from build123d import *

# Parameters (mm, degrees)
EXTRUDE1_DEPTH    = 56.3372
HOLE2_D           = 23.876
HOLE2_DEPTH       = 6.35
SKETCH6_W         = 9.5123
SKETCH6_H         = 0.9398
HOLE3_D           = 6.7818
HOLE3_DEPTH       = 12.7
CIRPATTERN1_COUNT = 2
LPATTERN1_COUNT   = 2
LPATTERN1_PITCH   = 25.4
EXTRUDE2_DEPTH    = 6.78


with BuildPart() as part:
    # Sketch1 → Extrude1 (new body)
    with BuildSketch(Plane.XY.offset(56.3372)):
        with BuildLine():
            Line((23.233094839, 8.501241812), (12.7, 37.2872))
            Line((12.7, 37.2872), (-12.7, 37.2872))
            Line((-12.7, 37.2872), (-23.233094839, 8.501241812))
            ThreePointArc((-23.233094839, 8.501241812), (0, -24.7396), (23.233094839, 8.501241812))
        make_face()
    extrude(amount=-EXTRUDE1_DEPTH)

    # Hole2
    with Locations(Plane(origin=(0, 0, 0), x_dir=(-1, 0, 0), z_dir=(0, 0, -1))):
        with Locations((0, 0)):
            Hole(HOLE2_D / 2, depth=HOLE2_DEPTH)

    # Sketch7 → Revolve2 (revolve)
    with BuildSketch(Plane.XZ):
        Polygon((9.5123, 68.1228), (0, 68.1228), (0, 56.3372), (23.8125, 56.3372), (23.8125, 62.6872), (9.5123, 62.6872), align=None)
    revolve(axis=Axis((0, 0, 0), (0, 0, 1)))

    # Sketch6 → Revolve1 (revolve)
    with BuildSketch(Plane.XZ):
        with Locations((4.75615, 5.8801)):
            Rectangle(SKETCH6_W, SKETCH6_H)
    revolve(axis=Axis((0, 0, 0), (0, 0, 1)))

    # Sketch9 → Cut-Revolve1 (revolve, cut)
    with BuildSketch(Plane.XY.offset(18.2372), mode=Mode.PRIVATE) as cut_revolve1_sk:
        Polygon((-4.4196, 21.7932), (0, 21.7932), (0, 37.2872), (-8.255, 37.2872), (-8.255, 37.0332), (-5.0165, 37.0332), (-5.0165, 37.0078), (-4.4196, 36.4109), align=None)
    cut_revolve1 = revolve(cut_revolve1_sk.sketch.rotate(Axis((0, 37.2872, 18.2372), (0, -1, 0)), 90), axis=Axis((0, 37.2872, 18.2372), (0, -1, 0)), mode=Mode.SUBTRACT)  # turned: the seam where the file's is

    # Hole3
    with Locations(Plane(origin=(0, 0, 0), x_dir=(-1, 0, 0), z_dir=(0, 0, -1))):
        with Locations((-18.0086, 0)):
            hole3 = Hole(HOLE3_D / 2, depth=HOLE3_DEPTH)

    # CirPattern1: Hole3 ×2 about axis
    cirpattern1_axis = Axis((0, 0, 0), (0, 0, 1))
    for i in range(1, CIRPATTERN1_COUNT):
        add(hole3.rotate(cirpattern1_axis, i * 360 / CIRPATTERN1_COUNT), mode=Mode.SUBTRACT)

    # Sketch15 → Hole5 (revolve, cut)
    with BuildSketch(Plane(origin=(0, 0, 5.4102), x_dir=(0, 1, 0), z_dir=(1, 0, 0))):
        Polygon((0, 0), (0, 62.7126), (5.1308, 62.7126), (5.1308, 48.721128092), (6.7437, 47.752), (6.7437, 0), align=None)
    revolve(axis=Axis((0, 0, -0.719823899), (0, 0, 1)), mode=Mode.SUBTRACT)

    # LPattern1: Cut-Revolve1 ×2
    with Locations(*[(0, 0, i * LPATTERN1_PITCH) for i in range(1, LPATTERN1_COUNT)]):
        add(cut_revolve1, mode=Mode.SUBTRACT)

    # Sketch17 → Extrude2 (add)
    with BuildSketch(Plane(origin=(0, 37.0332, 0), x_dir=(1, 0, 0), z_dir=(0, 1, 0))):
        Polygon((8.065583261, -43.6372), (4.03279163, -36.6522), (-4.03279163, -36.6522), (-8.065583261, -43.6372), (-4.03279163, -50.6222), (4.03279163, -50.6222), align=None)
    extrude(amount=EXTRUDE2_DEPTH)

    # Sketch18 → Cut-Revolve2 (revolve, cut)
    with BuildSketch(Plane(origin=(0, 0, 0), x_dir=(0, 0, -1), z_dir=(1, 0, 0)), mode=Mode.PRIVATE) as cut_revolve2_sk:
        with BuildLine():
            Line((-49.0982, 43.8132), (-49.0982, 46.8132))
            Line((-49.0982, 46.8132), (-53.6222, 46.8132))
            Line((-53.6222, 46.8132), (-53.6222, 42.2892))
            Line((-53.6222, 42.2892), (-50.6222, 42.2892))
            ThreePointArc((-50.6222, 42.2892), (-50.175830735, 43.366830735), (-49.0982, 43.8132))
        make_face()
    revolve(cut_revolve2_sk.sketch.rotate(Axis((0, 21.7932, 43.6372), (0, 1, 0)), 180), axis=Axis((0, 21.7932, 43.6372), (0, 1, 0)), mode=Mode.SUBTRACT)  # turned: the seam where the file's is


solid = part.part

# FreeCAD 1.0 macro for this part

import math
import FreeCAD as App
import Part
import Sketcher

V = App.Vector
Q = App.Units.Quantity


def add_polygon(sketch, points):
    """Adds a closed chain of lines whose ends are joined by coincident constraints."""
    first, n = sketch.GeometryCount, len(points)
    for a, b in zip(points, points[1:] + points[:1]):
        sketch.addGeometry(Part.LineSegment(App.Vector(*a, 0), App.Vector(*b, 0)), False)
    for i in range(n):
        sketch.addConstraint(Sketcher.Constraint("Coincident", first + i, 2, first + (i + 1) % n, 1))

doc = App.newDocument("Part")
params = doc.addObject("Spreadsheet::Sheet", "Params")
for row, (alias, value) in enumerate([
    ("sketch1_width", "1 in"),
    ("sketch1_radius", "0.974 in"),
    ("pad1_length", "2.218 in"),
    ("sketch2_diameter", "0.94 in"),
    ("hole_diameter", "0.94 in"),
    ("hole_depth", "0.25 in"),
    ("sketch3_height", "0.25 in"),
    ("sketch3_width", "0.9375 in"),
    ("sketch3_width2", "0.563 in"),
    ("sketch3_height2", "0.464 in"),
    ("revolution_angle", "360 deg"),
    ("sketch4_height", "0.037 in"),
    ("revolution2_angle", "360 deg"),
    ("sketch5_height", "0.61 in"),
    ("sketch5_height2", "0.01 in"),
    ("sketch5_width", "0.174 in"),
    ("sketch5_width2", "0.325 in"),
    ("sketch5_height3", "0.001 in"),
    ("groove_angle", "360 deg"),
    ("sketch6_diameter", "0.267 in"),
    ("hole2_diameter", "0.267 in"),
    ("hole2_depth", "0.5 in"),
    ("sketch7_height", "1.88 in"),
    ("sketch7_width", "0.202 in"),
    ("sketch7_height2", "2.469 in"),
    ("groove2_angle", "360 deg"),
    ("linearpattern_pitch", "1 in"),
    ("pad2_length", "6.78 mm"),
    ("sketch9_radius", "0.06 in"),
    ("groove3_angle", "360 deg"),
], start=1):
    params.set(f"A{row}", alias)
    params.set(f"B{row}", "=" + value)
    params.setAlias(f"B{row}", alias)

body = doc.addObject("PartDesign::Body", "Body")

# Sketch on XY plane
sketch1 = body.newObject("Sketcher::SketchObject", "Sketch")
sketch1.AttachmentSupport = (doc.getObject("XY_Plane"), [""])
sketch1.MapMode = "FlatFace"
sketch1.AttachmentOffset = App.Placement(V(0, 0, 2.218 * 25.4), App.Rotation())
sketch1.addGeometry([
    Part.LineSegment(V(23, 9, 0), V(13, 37, 0)),
    Part.LineSegment(V(13, 37, 0), V(-13, 37, 0)),
    Part.LineSegment(V(-13, 37, 0), V(-23, 9, 0)),
    Part.ArcOfCircle(Part.Circle(V(0, 0, 0), V(0, 0, 1), 25), math.radians(160), math.radians(380)),
], False)
sketch1.addConstraint([
    Sketcher.Constraint("Coincident", 0, 2, 1, 1),
    Sketcher.Constraint("Coincident", 1, 2, 2, 1),
    Sketcher.Constraint("Tangent", 2, 2, 3, 1),
    Sketcher.Constraint("Tangent", 3, 2, 0, 1),
    Sketcher.Constraint("Horizontal", 1),
    Sketcher.Constraint("Coincident", 3, 3, -1, 1),
    Sketcher.Constraint("Horizontal", 2, 2, 3, 2),
    Sketcher.Constraint("DistanceX", 1, 2, 1, 1, Q("1 in")),
    Sketcher.Constraint("Radius", 3, Q("0.974 in")),
    Sketcher.Constraint("DistanceY", -1, 1, 0, 2, Q("1.468 in")),
])
sketch1.setExpression("Constraints[7]", "Params.sketch1_width")
sketch1.setExpression("Constraints[8]", "Params.sketch1_radius")
pad1 = body.newObject("PartDesign::Pad", "Pad")
pad1.Profile = sketch1
pad1.setExpression("Length", "Params.pad1_length")
pad1.Reversed = True

# Sketch on XY plane
sketch2 = body.newObject("Sketcher::SketchObject", "Sketch001")
sketch2.AttachmentSupport = (doc.getObject("XY_Plane"), [""])
sketch2.MapMode = "FlatFace"
sketch2.addGeometry(Part.Circle(V(0, 0, 0), V(0, 0, 1), 12), False)
sketch2.addConstraint([
    Sketcher.Constraint("Coincident", 0, 3, -1, 1),
    Sketcher.Constraint("Diameter", 0, Q("0.94 in")),
])
sketch2.setExpression("Constraints[1]", "Params.sketch2_diameter")
doc.recompute()
hole = body.newObject("PartDesign::Hole", "Hole")
hole.Profile = sketch2
hole.ThreadType = "None"
hole.setExpression("Diameter", "Params.hole_diameter")
hole.DepthType = "Dimension"
hole.setExpression("Depth", "Params.hole_depth")
hole.DrillPoint = "Flat"
hole.Reversed = True

# Sketch on XZ plane
sketch3 = body.newObject("Sketcher::SketchObject", "Sketch002")
sketch3.AttachmentSupport = (doc.getObject("XZ_Plane"), [""])
sketch3.MapMode = "FlatFace"
add_polygon(sketch3, [(10, 68), (0, 68), (0, 56), (24, 56), (24, 63), (10, 63)])  # lines 0-5
sketch3.addConstraint([
    Sketcher.Constraint("Horizontal", 0),
    Sketcher.Constraint("Vertical", 1),
    Sketcher.Constraint("Horizontal", 2),
    Sketcher.Constraint("Vertical", 3),
    Sketcher.Constraint("Horizontal", 4),
    Sketcher.Constraint("Vertical", 5),
    Sketcher.Constraint("PointOnObject", 0, 2, -2),
    Sketcher.Constraint("DistanceY", 3, 1, 3, 2, Q("0.25 in")),
    Sketcher.Constraint("DistanceX", 2, 1, 2, 2, Q("0.9375 in")),
    Sketcher.Constraint("DistanceX", 4, 2, 4, 1, Q("0.563 in")),
    Sketcher.Constraint("DistanceY", 1, 2, 1, 1, Q("0.464 in")),
    Sketcher.Constraint("DistanceY", -1, 1, 0, 2, Q("2.682 in")),
])
sketch3.setExpression("Constraints[13]", "Params.sketch3_height")
sketch3.setExpression("Constraints[14]", "Params.sketch3_width")
sketch3.setExpression("Constraints[15]", "Params.sketch3_width2")
sketch3.setExpression("Constraints[16]", "Params.sketch3_height2")
revolution = body.newObject("PartDesign::Revolution", "Revolution")
revolution.Profile = sketch3
revolution.ReferenceAxis = (sketch3, ["V_Axis"])
revolution.setExpression("Angle", "Params.revolution_angle")

# Sketch on XZ plane
sketch4 = body.newObject("Sketcher::SketchObject", "Sketch003")
sketch4.AttachmentSupport = (doc.getObject("XZ_Plane"), [""])
sketch4.MapMode = "FlatFace"
add_polygon(sketch4, [(0, 6.3), (0, 5.4), (9.5, 5.4), (9.5, 6.3)])  # lines 0-3
sketch4.addConstraint([
    Sketcher.Constraint("Vertical", 0),
    Sketcher.Constraint("Horizontal", 1),
    Sketcher.Constraint("Vertical", 2),
    Sketcher.Constraint("Horizontal", 3),
    Sketcher.Constraint("PointOnObject", 0, 2, -2),
    Sketcher.Constraint("DistanceY", 0, 2, 0, 1, Q("0.037 in")),
    Sketcher.Constraint("DistanceY", -1, 1, 2, 2, Q("0.25 in")),
    Sketcher.Constraint("DistanceX", 1, 1, 1, 2, Q("0.3745 in")),
])
sketch4.setExpression("Constraints[9]", "Params.sketch4_height")
revolution2 = body.newObject("PartDesign::Revolution", "Revolution001")
revolution2.Profile = sketch4
revolution2.ReferenceAxis = (sketch4, ["V_Axis"])
revolution2.setExpression("Angle", "Params.revolution2_angle")

# Sketch on XY plane
sketch5 = body.newObject("Sketcher::SketchObject", "Sketch004")
sketch5.AttachmentSupport = (doc.getObject("XY_Plane"), [""])
sketch5.MapMode = "FlatFace"
sketch5.AttachmentOffset = App.Placement(V(0, 0, 0.718 * 25.4), App.Rotation())
add_polygon(sketch5, [(-4.42, 21.793), (0, 21.793), (0, 37.287), (-8.255, 37.287), (-8.255, 37.033), (-5.016, 37.033), (-5.016, 37.008), (-4.42, 36.411)])  # lines 0-7
sketch5.addConstraint([
    Sketcher.Constraint("Horizontal", 0),
    Sketcher.Constraint("Vertical", 1),
    Sketcher.Constraint("Horizontal", 2),
    Sketcher.Constraint("Vertical", 3),
    Sketcher.Constraint("Horizontal", 4),
    Sketcher.Constraint("Vertical", 5),
    Sketcher.Constraint("Vertical", 7),
    Sketcher.Constraint("PointOnObject", 0, 2, -2),
    Sketcher.Constraint("Angle", 6, Q("-45 deg")),
    Sketcher.Constraint("DistanceY", 1, 1, 1, 2, Q("0.61 in")),
    Sketcher.Constraint("DistanceY", 3, 2, 3, 1, Q("0.01 in")),
    Sketcher.Constraint("DistanceX", 0, 1, 0, 2, Q("0.174 in")),
    Sketcher.Constraint("DistanceX", 2, 2, 2, 1, Q("0.325 in")),
    Sketcher.Constraint("DistanceY", 5, 2, 5, 1, Q("0.001 in")),
    Sketcher.Constraint("DistanceX", 4, 1, 4, 2, Q("0.1275 in")),
    Sketcher.Constraint("DistanceY", -1, 1, 0, 2, Q("0.858 in")),
])
sketch5.setExpression("Constraints[17]", "Params.sketch5_height")
sketch5.setExpression("Constraints[18]", "Params.sketch5_height2")
sketch5.setExpression("Constraints[19]", "Params.sketch5_width")
sketch5.setExpression("Constraints[20]", "Params.sketch5_width2")
sketch5.setExpression("Constraints[21]", "Params.sketch5_height3")
groove = body.newObject("PartDesign::Groove", "Groove")
groove.Profile = sketch5
groove.ReferenceAxis = (sketch5, ["V_Axis"])
groove.setExpression("Angle", "Params.groove_angle")

# Sketch on XY plane
sketch6 = body.newObject("Sketcher::SketchObject", "Sketch005")
sketch6.AttachmentSupport = (doc.getObject("XY_Plane"), [""])
sketch6.MapMode = "FlatFace"
sketch6.addGeometry(Part.Circle(V(18, 0, 0), V(0, 0, 1), 3.4), False)
sketch6.addConstraint([
    Sketcher.Constraint("PointOnObject", 0, 3, -1),
    Sketcher.Constraint("Diameter", 0, Q("0.267 in")),
    Sketcher.Constraint("DistanceX", -1, 1, 0, 3, Q("0.709 in")),
])
sketch6.setExpression("Constraints[1]", "Params.sketch6_diameter")
doc.recompute()
hole2 = body.newObject("PartDesign::Hole", "Hole001")
hole2.Profile = sketch6
hole2.ThreadType = "None"
hole2.setExpression("Diameter", "Params.hole2_diameter")
hole2.DepthType = "Dimension"
hole2.setExpression("Depth", "Params.hole2_depth")
hole2.DrillPoint = "Flat"
hole2.Reversed = True
doc.recompute()

polarpattern = body.newObject("PartDesign::PolarPattern", "PolarPattern")
polarpattern.Originals = [hole2]
polarpattern.Axis = (doc.getObject("Z_Axis"), [""])
polarpattern.Angle = 360
polarpattern.Occurrences = 2
body.Tip = polarpattern

# Sketch on YZ plane
sketch7 = body.newObject("Sketcher::SketchObject", "Sketch006")
sketch7.AttachmentSupport = (doc.getObject("YZ_Plane"), [""])
sketch7.MapMode = "FlatFace"
add_polygon(sketch7, [(0, 68.1), (0, 5.4), (6.7, 5.4), (6.7, 53.2), (5.1, 54.1), (5.1, 68.1)])  # lines 0-5
sketch7.addConstraint([
    Sketcher.Constraint("Vertical", 0),
    Sketcher.Constraint("Horizontal", 1),
    Sketcher.Constraint("Vertical", 2),
    Sketcher.Constraint("Vertical", 4),
    Sketcher.Constraint("Horizontal", 5),
    Sketcher.Constraint("PointOnObject", 0, 2, -2),
    Sketcher.Constraint("Angle", 3, Q("149 deg")),
    Sketcher.Constraint("DistanceY", 2, 1, 2, 2, Q("1.88 in")),
    Sketcher.Constraint("DistanceX", 5, 2, 5, 1, Q("0.202 in")),
    Sketcher.Constraint("DistanceY", 0, 2, 0, 1, Q("2.469 in")),
    Sketcher.Constraint("DistanceX", 1, 1, 1, 2, Q("0.2655 in")),
    Sketcher.Constraint("DistanceY", -1, 1, 0, 2, Q("0.213 in")),
])
sketch7.setExpression("Constraints[13]", "Params.sketch7_height")
sketch7.setExpression("Constraints[14]", "Params.sketch7_width")
sketch7.setExpression("Constraints[15]", "Params.sketch7_height2")
groove2 = body.newObject("PartDesign::Groove", "Groove001")
groove2.Profile = sketch7
groove2.ReferenceAxis = (sketch7, ["V_Axis"])
groove2.setExpression("Angle", "Params.groove2_angle")
doc.recompute()

linearpattern = body.newObject("PartDesign::LinearPattern", "LinearPattern")
linearpattern.Originals = [groove]
linearpattern.Direction = (doc.getObject("Z_Axis"), [""])
linearpattern.Mode = "offset"
linearpattern.setExpression("Offset", "Params.linearpattern_pitch")
linearpattern.Occurrences = 2
body.Tip = linearpattern

# Sketch on XZ plane
sketch8 = body.newObject("Sketcher::SketchObject", "Sketch007")
sketch8.AttachmentSupport = (doc.getObject("XZ_Plane"), [""])
sketch8.MapMode = "FlatFace"
sketch8.AttachmentOffset = App.Placement(V(0, 0, -1.458 * 25.4), App.Rotation())
add_polygon(sketch8, [(8, 44), (4, 37), (-4, 37), (-8, 44), (-4, 51), (4, 51)])  # lines 0-5
sketch8.addConstraint([
    Sketcher.Constraint("Horizontal", 1),
    Sketcher.Constraint("Horizontal", 4),
    Sketcher.Constraint("Symmetric", 2, 2, 5, 2, -2),
    Sketcher.Constraint("Parallel", 0, 3),
    Sketcher.Constraint("Parallel", 2, 5),
    Sketcher.Constraint("Vertical", 1, 2, 3, 2),
    Sketcher.Constraint("Vertical", 0, 2, 4, 2),
    Sketcher.Constraint("Angle", 0, Q("-120 deg")),
    Sketcher.Constraint("DistanceY", 1, 2, 3, 2, Q("0.55 in")),
    Sketcher.Constraint("DistanceY", -1, 1, 0, 2, Q("1.443 in")),
    Sketcher.Constraint("DistanceX", 1, 2, 1, 1, 8.065583),
])
pad2 = body.newObject("PartDesign::Pad", "Pad001")
pad2.Profile = sketch8
pad2.setExpression("Length", "Params.pad2_length")
pad2.Reversed = True

# Sketch on YZ plane
sketch9 = body.newObject("Sketcher::SketchObject", "Sketch008")
sketch9.AttachmentSupport = (doc.getObject("YZ_Plane"), [""])
sketch9.MapMode = "FlatFace"
sketch9.addGeometry([
    Part.LineSegment(V(43.8, 49.1, 0), V(46.8, 49.1, 0)),  # 0
    Part.LineSegment(V(46.8, 49.1, 0), V(46.8, 53.6, 0)),  # 1
    Part.LineSegment(V(46.8, 53.6, 0), V(42.3, 53.6, 0)),  # 2
    Part.LineSegment(V(42.3, 53.6, 0), V(42.3, 50.6, 0)),  # 3
    Part.ArcOfCircle(Part.Circle(V(42.3, 49.1, 0), V(0, 0, 1), 1.5), math.radians(0), math.radians(90)),  # 4
], False)
sketch9.addGeometry(Part.LineSegment(V(42.3, 43.6, 0), V(46.8, 43.6, 0)), True)  # axis
sketch9.addConstraint([
    Sketcher.Constraint("Coincident", 0, 2, 1, 1),
    Sketcher.Constraint("Coincident", 1, 2, 2, 1),
    Sketcher.Constraint("Coincident", 2, 2, 3, 1),
    Sketcher.Constraint("Coincident", 3, 2, 4, 2),
    Sketcher.Constraint("Coincident", 4, 1, 0, 1),
    Sketcher.Constraint("Horizontal", 0),
    Sketcher.Constraint("Vertical", 1),
    Sketcher.Constraint("Horizontal", 2),
    Sketcher.Constraint("Vertical", 3),
    Sketcher.Constraint("Horizontal", 5),
    Sketcher.Constraint("Horizontal", 4, 3, 0, 2),
    Sketcher.Constraint("Vertical", 4, 3, 2, 2),
    Sketcher.Constraint("Vertical", 3, 2, 5, 1),
    Sketcher.Constraint("Vertical", 1, 2, 5, 2),
    Sketcher.Constraint("Equal", 5, 1),
    Sketcher.Constraint("Radius", 4, Q("0.06 in")),
    Sketcher.Constraint("DistanceY", -1, 1, 4, 3, Q("1.933 in")),
    Sketcher.Constraint("DistanceY", -1, 1, 5, 1, Q("1.718 in")),
    Sketcher.Constraint("DistanceX", 0, 1, 0, 2, 3.0),
    Sketcher.Constraint("DistanceX", -1, 1, 4, 3, 42.2892),
])
sketch9.setExpression("Constraints[15]", "Params.sketch9_radius")
groove3 = body.newObject("PartDesign::Groove", "Groove002")
groove3.Profile = sketch9
groove3.ReferenceAxis = (sketch9, ["Axis0"])
groove3.setExpression("Angle", "Params.groove3_angle")

doc.recompute()
